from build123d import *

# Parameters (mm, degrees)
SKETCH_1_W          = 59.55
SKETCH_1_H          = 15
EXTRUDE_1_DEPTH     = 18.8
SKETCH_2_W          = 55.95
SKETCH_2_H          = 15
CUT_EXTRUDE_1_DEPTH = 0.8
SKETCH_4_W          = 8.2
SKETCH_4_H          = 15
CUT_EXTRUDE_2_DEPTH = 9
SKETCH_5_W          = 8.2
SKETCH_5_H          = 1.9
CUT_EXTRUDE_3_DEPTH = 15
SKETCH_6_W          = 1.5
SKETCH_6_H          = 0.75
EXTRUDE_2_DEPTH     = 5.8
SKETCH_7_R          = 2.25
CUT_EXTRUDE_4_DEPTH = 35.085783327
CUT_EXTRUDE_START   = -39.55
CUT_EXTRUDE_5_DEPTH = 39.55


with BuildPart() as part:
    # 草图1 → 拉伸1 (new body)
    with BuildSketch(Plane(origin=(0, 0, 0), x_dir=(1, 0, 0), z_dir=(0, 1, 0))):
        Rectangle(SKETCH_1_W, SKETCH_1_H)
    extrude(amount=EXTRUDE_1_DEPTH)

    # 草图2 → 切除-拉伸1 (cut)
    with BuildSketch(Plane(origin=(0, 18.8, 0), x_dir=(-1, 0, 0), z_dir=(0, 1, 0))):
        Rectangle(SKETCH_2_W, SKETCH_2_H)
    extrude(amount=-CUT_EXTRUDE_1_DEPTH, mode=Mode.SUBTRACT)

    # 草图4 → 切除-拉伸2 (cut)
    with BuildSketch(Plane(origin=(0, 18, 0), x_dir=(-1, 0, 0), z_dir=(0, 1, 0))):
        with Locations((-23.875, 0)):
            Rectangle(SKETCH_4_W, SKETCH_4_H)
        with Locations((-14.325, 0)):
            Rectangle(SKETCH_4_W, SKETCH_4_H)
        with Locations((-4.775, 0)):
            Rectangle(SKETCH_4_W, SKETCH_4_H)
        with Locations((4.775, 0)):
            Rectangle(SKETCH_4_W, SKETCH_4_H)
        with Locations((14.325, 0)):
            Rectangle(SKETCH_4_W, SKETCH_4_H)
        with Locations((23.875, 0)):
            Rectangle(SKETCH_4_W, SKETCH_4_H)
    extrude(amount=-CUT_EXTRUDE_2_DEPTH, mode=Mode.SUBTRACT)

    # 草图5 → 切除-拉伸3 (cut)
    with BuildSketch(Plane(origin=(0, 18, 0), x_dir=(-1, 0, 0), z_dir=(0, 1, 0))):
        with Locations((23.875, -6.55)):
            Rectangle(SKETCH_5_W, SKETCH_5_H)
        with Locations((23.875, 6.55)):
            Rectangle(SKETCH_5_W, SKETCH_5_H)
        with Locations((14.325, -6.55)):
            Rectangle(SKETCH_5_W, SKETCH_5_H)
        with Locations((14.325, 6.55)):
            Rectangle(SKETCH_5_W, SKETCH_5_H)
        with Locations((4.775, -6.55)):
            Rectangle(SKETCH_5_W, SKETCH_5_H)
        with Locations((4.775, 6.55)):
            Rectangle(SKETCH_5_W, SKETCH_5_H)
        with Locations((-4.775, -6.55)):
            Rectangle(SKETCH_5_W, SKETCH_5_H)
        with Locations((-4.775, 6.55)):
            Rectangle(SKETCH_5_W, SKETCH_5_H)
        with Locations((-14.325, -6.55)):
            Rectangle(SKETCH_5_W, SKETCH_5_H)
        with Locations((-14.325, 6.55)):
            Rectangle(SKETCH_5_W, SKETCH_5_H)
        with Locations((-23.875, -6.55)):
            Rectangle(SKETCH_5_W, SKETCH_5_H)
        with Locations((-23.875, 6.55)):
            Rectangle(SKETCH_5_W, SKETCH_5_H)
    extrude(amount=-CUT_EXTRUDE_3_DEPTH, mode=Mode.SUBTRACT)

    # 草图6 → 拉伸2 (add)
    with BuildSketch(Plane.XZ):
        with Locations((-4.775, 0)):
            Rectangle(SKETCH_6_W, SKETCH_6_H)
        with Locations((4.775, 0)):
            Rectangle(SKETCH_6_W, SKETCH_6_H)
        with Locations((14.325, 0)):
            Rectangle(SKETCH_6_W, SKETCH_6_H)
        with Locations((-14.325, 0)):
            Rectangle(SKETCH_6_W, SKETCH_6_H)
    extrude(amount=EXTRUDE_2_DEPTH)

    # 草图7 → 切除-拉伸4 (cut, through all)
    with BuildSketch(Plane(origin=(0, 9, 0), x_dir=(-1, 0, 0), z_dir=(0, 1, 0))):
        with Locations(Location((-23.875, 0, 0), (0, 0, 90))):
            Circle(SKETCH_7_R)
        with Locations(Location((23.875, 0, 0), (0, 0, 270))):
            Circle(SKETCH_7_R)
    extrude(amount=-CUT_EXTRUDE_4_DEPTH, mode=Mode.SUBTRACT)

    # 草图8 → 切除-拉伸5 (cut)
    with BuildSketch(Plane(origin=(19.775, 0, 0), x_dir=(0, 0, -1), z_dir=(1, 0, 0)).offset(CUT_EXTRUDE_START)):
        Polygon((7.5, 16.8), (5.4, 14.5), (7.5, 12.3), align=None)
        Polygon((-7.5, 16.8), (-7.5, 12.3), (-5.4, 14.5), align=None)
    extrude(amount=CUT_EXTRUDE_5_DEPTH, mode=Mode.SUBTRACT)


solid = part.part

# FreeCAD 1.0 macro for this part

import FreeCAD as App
import Part
import Sketcher
Q = App.Units.Quantity


def add_polygon(sketch, points):
    """Adds a closed chain of lines whose ends are joined by coincident constraints."""
    first, n = sketch.GeometryCount, len(points)
    for a, b in zip(points, points[1:] + points[:1]):
        sketch.addGeometry(Part.LineSegment(App.Vector(*a, 0), App.Vector(*b, 0)), False)
    for i in range(n):
        sketch.addConstraint(Sketcher.Constraint("Coincident", first + i, 2, first + (i + 1) % n, 1))

doc = App.newDocument("Part")
params = doc.addObject("Spreadsheet::Sheet", "Params")
for row, (alias, value) in enumerate([
    ("sketch1_height", "15 mm"),
    ("sketch1_width", "59.55 mm"),
    ("pad1_length", "18.8 mm"),
    ("sketch2_height", "15 mm"),
    ("sketch2_width", "55.95 mm"),
    ("pocket1_length", "0.8 mm"),
    ("sketch3_height", "15 mm"),
    ("sketch3_width", "8.2 mm"),
    ("pocket2_length", "9 mm"),
    ("sketch4_width", "8.2 mm"),
    ("sketch4_height", "1.9 mm"),
    ("pocket3_length", "15 mm"),
    ("sketch5_width", "1.5 mm"),
    ("sketch5_height", "0.75 mm"),
    ("pad2_length", "5.8 mm"),
    ("sketch6_diameter", "4.5 mm"),
    ("sketch7_width", "4.5 mm"),
    ("pocket5_length", "39.55 mm"),
], start=1):
    params.set(f"A{row}", alias)
    params.set(f"B{row}", "=" + value)
    params.setAlias(f"B{row}", alias)

body = doc.addObject("PartDesign::Body", "Body")

# Sketch on XZ plane
sketch1 = body.newObject("Sketcher::SketchObject", "Sketch")
sketch1.AttachmentSupport = (doc.getObject("XZ_Plane"), [""])
sketch1.MapMode = "FlatFace"
add_polygon(sketch1, [(-30, -8), (-30, 8), (30, 8), (30, -8)])  # lines 0-3
sketch1.addConstraint([
    Sketcher.Constraint("Vertical", 0),
    Sketcher.Constraint("Horizontal", 1),
    Sketcher.Constraint("Vertical", 2),
    Sketcher.Constraint("Horizontal", 3),
    Sketcher.Constraint("Symmetric", 0, 2, 2, 2, -1, 1),
    Sketcher.Constraint("DistanceY", 0, 1, 0, 2, Q("15 mm")),
    Sketcher.Constraint("DistanceX", 1, 1, 1, 2, Q("59.55 mm")),
])
sketch1.setExpression("Constraints[9]", "Params.sketch1_height")
sketch1.setExpression("Constraints[10]", "Params.sketch1_width")
pad1 = body.newObject("PartDesign::Pad", "Pad")
pad1.Profile = sketch1
pad1.setExpression("Length", "Params.pad1_length")
pad1.Reversed = True

# Sketch on XZ plane
sketch2 = body.newObject("Sketcher::SketchObject", "Sketch001")
sketch2.AttachmentSupport = (doc.getObject("XZ_Plane"), [""])
sketch2.MapMode = "FlatFace"
sketch2.AttachmentOffset = App.Placement(App.Vector(0, 0, -18.8), App.Rotation())
add_polygon(sketch2, [(28, 8), (28, -8), (-28, -8), (-28, 8)])  # lines 0-3
sketch2.addConstraint([
    Sketcher.Constraint("Vertical", 0),
    Sketcher.Constraint("Horizontal", 1),
    Sketcher.Constraint("Vertical", 2),
    Sketcher.Constraint("Horizontal", 3),
    Sketcher.Constraint("Symmetric", 0, 2, 2, 2, -1, 1),
    Sketcher.Constraint("DistanceY", 0, 2, 0, 1, Q("15 mm")),
    Sketcher.Constraint("DistanceX", 1, 2, 1, 1, Q("55.95 mm")),
])
sketch2.setExpression("Constraints[9]", "Params.sketch2_height")
sketch2.setExpression("Constraints[10]", "Params.sketch2_width")
pocket1 = body.newObject("PartDesign::Pocket", "Pocket")
pocket1.Profile = sketch2
pocket1.setExpression("Length", "Params.pocket1_length")
pocket1.Reversed = True

# Sketch on XZ plane
sketch3 = body.newObject("Sketcher::SketchObject", "Sketch002")
sketch3.AttachmentSupport = (doc.getObject("XZ_Plane"), [""])
sketch3.MapMode = "FlatFace"
sketch3.AttachmentOffset = App.Placement(App.Vector(0, 0, -18), App.Rotation())
add_polygon(sketch3, [(28, 8), (28, -8), (20, -8), (20, 8)])  # lines 0-3
add_polygon(sketch3, [(18, 8), (18, -8), (10, -8), (10, 8)])  # lines 4-7
add_polygon(sketch3, [(9, 8), (9, -8), (1, -8), (1, 8)])  # lines 8-11
add_polygon(sketch3, [(-1, 8), (-1, -8), (-9, -8), (-9, 8)])  # lines 12-15
add_polygon(sketch3, [(-10, 8), (-10, -8), (-18, -8), (-18, 8)])  # lines 16-19
add_polygon(sketch3, [(-20, 8), (-20, -8), (-28, -8), (-28, 8)])  # lines 20-23
sketch3.addConstraint([
    Sketcher.Constraint("Vertical", 0),
    Sketcher.Constraint("Horizontal", 1),
    Sketcher.Constraint("Vertical", 2),
    Sketcher.Constraint("Horizontal", 3),
    Sketcher.Constraint("Vertical", 4),
    Sketcher.Constraint("Horizontal", 5),
    Sketcher.Constraint("Vertical", 6),
    Sketcher.Constraint("Horizontal", 7),
    Sketcher.Constraint("Vertical", 8),
    Sketcher.Constraint("Horizontal", 9),
    Sketcher.Constraint("Vertical", 10),
    Sketcher.Constraint("Horizontal", 11),
    Sketcher.Constraint("Vertical", 12),
    Sketcher.Constraint("Horizontal", 13),
    Sketcher.Constraint("Vertical", 14),
    Sketcher.Constraint("Horizontal", 15),
    Sketcher.Constraint("Vertical", 16),
    Sketcher.Constraint("Horizontal", 17),
    Sketcher.Constraint("Vertical", 18),
    Sketcher.Constraint("Horizontal", 19),
    Sketcher.Constraint("Vertical", 20),
    Sketcher.Constraint("Horizontal", 21),
    Sketcher.Constraint("Vertical", 22),
    Sketcher.Constraint("Horizontal", 23),
    Sketcher.Constraint("Symmetric", 10, 2, 12, 2, -1, 1),
    Sketcher.Constraint("Symmetric", 8, 2, 14, 2, -1, 1),
    Sketcher.Constraint("Symmetric", 6, 2, 16, 2, -1, 1),
    Sketcher.Constraint("Symmetric", 4, 2, 18, 2, -1, 1),
    Sketcher.Constraint("Symmetric", 2, 2, 20, 2, -1, 1),
    Sketcher.Constraint("Symmetric", 0, 2, 22, 2, -1, 1),
    Sketcher.Constraint("Horizontal", 1, 2, 4, 2),
    Sketcher.Constraint("Horizontal", 3, 2, 6, 2),
    Sketcher.Constraint("Horizontal", 5, 2, 8, 2),
    Sketcher.Constraint("Horizontal", 7, 2, 10, 2),
    Sketcher.Constraint("Horizontal", 9, 2, 12, 2),
    Sketcher.Constraint("Equal", 3, 5),
    Sketcher.Constraint("Equal", 7, 9),
    Sketcher.Constraint("DistanceY", 0, 2, 0, 1, Q("15 mm")),
    Sketcher.Constraint("DistanceX", 1, 2, 1, 1, Q("8.2 mm")),
    Sketcher.Constraint("DistanceX", 8, 2, 1, 2, Q("10.9 mm")),
    Sketcher.Constraint("DistanceX", 12, 2, 5, 2, Q("10.9 mm")),
    Sketcher.Constraint("DistanceX", 4, 2, 1, 2, Q("1.35 mm")),
])
sketch3.setExpression("Constraints[61]", "Params.sketch3_height")
sketch3.setExpression("Constraints[62]", "Params.sketch3_width")
pocket2 = body.newObject("PartDesign::Pocket", "Pocket001")
pocket2.Profile = sketch3
pocket2.setExpression("Length", "Params.pocket2_length")
pocket2.Reversed = True

# Sketch on XZ plane
sketch4 = body.newObject("Sketcher::SketchObject", "Sketch003")
sketch4.AttachmentSupport = (doc.getObject("XZ_Plane"), [""])
sketch4.MapMode = "FlatFace"
sketch4.AttachmentOffset = App.Placement(App.Vector(0, 0, -18), App.Rotation())
add_polygon(sketch4, [(-19.8, -5.6), (-19.8, -7.5), (-28, -7.5), (-28, -5.6)])  # lines 0-3
add_polygon(sketch4, [(-19.8, 7.5), (-19.8, 5.6), (-28, 5.6), (-28, 7.5)])  # lines 4-7
add_polygon(sketch4, [(-10.2, -5.6), (-10.2, -7.5), (-18.4, -7.5), (-18.4, -5.6)])  # lines 8-11
add_polygon(sketch4, [(-10.2, 7.5), (-10.2, 5.6), (-18.4, 5.6), (-18.4, 7.5)])  # lines 12-15
add_polygon(sketch4, [(-0.7, -5.6), (-0.7, -7.5), (-8.9, -7.5), (-8.9, -5.6)])  # lines 16-19
add_polygon(sketch4, [(-0.7, 7.5), (-0.7, 5.6), (-8.9, 5.6), (-8.9, 7.5)])  # lines 20-23
add_polygon(sketch4, [(8.9, -5.6), (8.9, -7.5), (0.7, -7.5), (0.7, -5.6)])  # lines 24-27
add_polygon(sketch4, [(8.9, 7.5), (8.9, 5.6), (0.7, 5.6), (0.7, 7.5)])  # lines 28-31
add_polygon(sketch4, [(18.4, -5.6), (18.4, -7.5), (10.2, -7.5), (10.2, -5.6)])  # lines 32-35
add_polygon(sketch4, [(18.4, 7.5), (18.4, 5.6), (10.2, 5.6), (10.2, 7.5)])  # lines 36-39
add_polygon(sketch4, [(28, -5.6), (28, -7.5), (19.8, -7.5), (19.8, -5.6)])  # lines 40-43
add_polygon(sketch4, [(28, 7.5), (28, 5.6), (19.8, 5.6), (19.8, 7.5)])  # lines 44-47
sketch4.addConstraint([
    Sketcher.Constraint("Vertical", 0),
    Sketcher.Constraint("Horizontal", 1),
    Sketcher.Constraint("Vertical", 2),
    Sketcher.Constraint("Horizontal", 3),
    Sketcher.Constraint("Vertical", 4),
    Sketcher.Constraint("Horizontal", 5),
    Sketcher.Constraint("Vertical", 6),
    Sketcher.Constraint("Horizontal", 7),
    Sketcher.Constraint("Vertical", 8),
    Sketcher.Constraint("Horizontal", 9),
    Sketcher.Constraint("Vertical", 10),
    Sketcher.Constraint("Horizontal", 11),
    Sketcher.Constraint("Vertical", 12),
    Sketcher.Constraint("Horizontal", 13),
    Sketcher.Constraint("Vertical", 14),
    Sketcher.Constraint("Horizontal", 15),
    Sketcher.Constraint("Vertical", 16),
    Sketcher.Constraint("Horizontal", 17),
    Sketcher.Constraint("Vertical", 18),
    Sketcher.Constraint("Horizontal", 19),
    Sketcher.Constraint("Vertical", 20),
    Sketcher.Constraint("Horizontal", 21),
    Sketcher.Constraint("Vertical", 22),
    Sketcher.Constraint("Horizontal", 23),
    Sketcher.Constraint("Vertical", 24),
    Sketcher.Constraint("Horizontal", 25),
    Sketcher.Constraint("Vertical", 26),
    Sketcher.Constraint("Horizontal", 27),
    Sketcher.Constraint("Vertical", 28),
    Sketcher.Constraint("Horizontal", 29),
    Sketcher.Constraint("Vertical", 30),
    Sketcher.Constraint("Horizontal", 31),
    Sketcher.Constraint("Vertical", 32),
    Sketcher.Constraint("Horizontal", 33),
    Sketcher.Constraint("Vertical", 34),
    Sketcher.Constraint("Horizontal", 35),
    Sketcher.Constraint("Vertical", 36),
    Sketcher.Constraint("Horizontal", 37),
    Sketcher.Constraint("Vertical", 38),
    Sketcher.Constraint("Horizontal", 39),
    Sketcher.Constraint("Vertical", 40),
    Sketcher.Constraint("Horizontal", 41),
    Sketcher.Constraint("Vertical", 42),
    Sketcher.Constraint("Horizontal", 43),
    Sketcher.Constraint("Vertical", 44),
    Sketcher.Constraint("Horizontal", 45),
    Sketcher.Constraint("Vertical", 46),
    Sketcher.Constraint("Horizontal", 47),
    Sketcher.Constraint("Symmetric", 22, 2, 24, 2, -1, 1),
    Sketcher.Constraint("Symmetric", 20, 2, 26, 2, -1, 1),
    Sketcher.Constraint("Symmetric", 18, 2, 28, 2, -1, 1),
    Sketcher.Constraint("Symmetric", 16, 2, 30, 2, -1, 1),
    Sketcher.Constraint("Symmetric", 14, 2, 32, 2, -1, 1),
    Sketcher.Constraint("Symmetric", 12, 2, 34, 2, -1, 1),
    Sketcher.Constraint("Symmetric", 10, 2, 36, 2, -1, 1),
    Sketcher.Constraint("Symmetric", 8, 2, 38, 2, -1, 1),
    Sketcher.Constraint("Symmetric", 6, 2, 40, 2, -1, 1),
    Sketcher.Constraint("Symmetric", 4, 2, 42, 2, -1, 1),
    Sketcher.Constraint("Symmetric", 2, 2, 44, 2, -1, 1),
    Sketcher.Constraint("Symmetric", 0, 2, 46, 2, -1, 1),
    Sketcher.Constraint("Symmetric", 17, 2, 24, 2, -2),
    Sketcher.Constraint("Symmetric", 19, 2, 26, 2, -2),
    Sketcher.Constraint("Symmetric", 9, 2, 32, 2, -2),
    Sketcher.Constraint("Symmetric", 11, 2, 34, 2, -2),
    Sketcher.Constraint("Symmetric", 1, 2, 40, 2, -2),
    Sketcher.Constraint("Symmetric", 3, 2, 42, 2, -2),
    Sketcher.Constraint("Horizontal", 1, 2, 8, 2),
    Sketcher.Constraint("Horizontal", 3, 2, 10, 2),
    Sketcher.Constraint("Horizontal", 9, 2, 16, 2),
    Sketcher.Constraint("Horizontal", 11, 2, 18, 2),
    Sketcher.Constraint("Equal", 7, 9),
    Sketcher.Constraint("Equal", 15, 17),
    Sketcher.Constraint("DistanceX", 1, 2, 1, 1, Q("8.2 mm")),
    Sketcher.Constraint("DistanceY", 0, 2, 0, 1, Q("1.9 mm")),
    Sketcher.Constraint("DistanceY", 1, 2, 6, 2, Q("15 mm")),
    Sketcher.Constraint("DistanceX", 0, 2, 8, 2, Q("9.55 mm")),
    Sketcher.Constraint("DistanceX", 8, 2, 16, 2, Q("9.55 mm")),
    Sketcher.Constraint("DistanceX", 16, 2, 24, 2, Q("9.55 mm")),
])
sketch4.setExpression("Constraints[120]", "Params.sketch4_width")
sketch4.setExpression("Constraints[121]", "Params.sketch4_height")
pocket3 = body.newObject("PartDesign::Pocket", "Pocket002")
pocket3.Profile = sketch4
pocket3.setExpression("Length", "Params.pocket3_length")
pocket3.Reversed = True

# Sketch on XZ plane
sketch5 = body.newObject("Sketcher::SketchObject", "Sketch004")
sketch5.AttachmentSupport = (doc.getObject("XZ_Plane"), [""])
sketch5.MapMode = "FlatFace"
add_polygon(sketch5, [(-5.5, 0.4), (-5.5, -0.4), (-4, -0.4), (-4, 0.4)])  # lines 0-3
add_polygon(sketch5, [(4, 0.4), (4, -0.4), (5.5, -0.4), (5.5, 0.4)])  # lines 4-7
add_polygon(sketch5, [(13.6, 0.4), (13.6, -0.4), (15.1, -0.4), (15.1, 0.4)])  # lines 8-11
add_polygon(sketch5, [(-15.1, 0.4), (-15.1, -0.4), (-13.6, -0.4), (-13.6, 0.4)])  # lines 12-15
sketch5.addConstraint([
    Sketcher.Constraint("Vertical", 0),
    Sketcher.Constraint("Horizontal", 1),
    Sketcher.Constraint("Vertical", 2),
    Sketcher.Constraint("Horizontal", 3),
    Sketcher.Constraint("Vertical", 4),
    Sketcher.Constraint("Horizontal", 5),
    Sketcher.Constraint("Vertical", 6),
    Sketcher.Constraint("Horizontal", 7),
    Sketcher.Constraint("Vertical", 8),
    Sketcher.Constraint("Horizontal", 9),
    Sketcher.Constraint("Vertical", 10),
    Sketcher.Constraint("Horizontal", 11),
    Sketcher.Constraint("Vertical", 12),
    Sketcher.Constraint("Horizontal", 13),
    Sketcher.Constraint("Vertical", 14),
    Sketcher.Constraint("Horizontal", 15),
    Sketcher.Constraint("Symmetric", 2, 2, 4, 2, -1, 1),
    Sketcher.Constraint("Symmetric", 0, 2, 6, 2, -1, 1),
    Sketcher.Constraint("Symmetric", 10, 2, 12, 2, -1, 1),
    Sketcher.Constraint("Symmetric", 8, 2, 14, 2, -1, 1),
    Sketcher.Constraint("Horizontal", 1, 2, 4, 2),
    Sketcher.Constraint("Horizontal", 5, 2, 8, 2),
    Sketcher.Constraint("Horizontal", 7, 2, 10, 2),
    Sketcher.Constraint("Equal", 7, 9),
    Sketcher.Constraint("DistanceX", 1, 1, 1, 2, Q("1.5 mm")),
    Sketcher.Constraint("DistanceY", 0, 2, 0, 1, Q("0.75 mm")),
    Sketcher.Constraint("DistanceX", 1, 2, 8, 2, Q("17.6 mm")),
    Sketcher.Constraint("DistanceX", 1, 2, 4, 2, Q("8.05 mm")),
])
sketch5.setExpression("Constraints[40]", "Params.sketch5_width")
sketch5.setExpression("Constraints[41]", "Params.sketch5_height")
pad2 = body.newObject("PartDesign::Pad", "Pad001")
pad2.Profile = sketch5
pad2.setExpression("Length", "Params.pad2_length")

# Sketch on XZ plane
sketch6 = body.newObject("Sketcher::SketchObject", "Sketch005")
sketch6.AttachmentSupport = (doc.getObject("XZ_Plane"), [""])
sketch6.MapMode = "FlatFace"
sketch6.AttachmentOffset = App.Placement(App.Vector(0, 0, -9), App.Rotation())
sketch6.addGeometry([
    Part.Circle(App.Vector(23.9, 0, 0), App.Vector(0, 0, 1), 2.2),
    Part.Circle(App.Vector(-23.9, 0, 0), App.Vector(0, 0, 1), 2.2),
], False)
sketch6.addConstraint([
    Sketcher.Constraint("Equal", 0, 1),
    Sketcher.Constraint("Symmetric", 0, 3, 1, 3, -1, 1),
    Sketcher.Constraint("PointOnObject", 0, 3, -1),
    Sketcher.Constraint("Diameter", 0, Q("4.5 mm")),
    Sketcher.Constraint("DistanceX", 1, 3, 0, 3, Q("47.75 mm")),
])
sketch6.setExpression("Constraints[3]", "Params.sketch6_diameter")
pocket4 = body.newObject("PartDesign::Pocket", "Pocket003")
pocket4.Profile = sketch6
pocket4.Type = "ThroughAll"
pocket4.Reversed = True

# Sketch on YZ plane
sketch7 = body.newObject("Sketcher::SketchObject", "Sketch006")
sketch7.AttachmentSupport = (doc.getObject("YZ_Plane"), [""])
sketch7.MapMode = "FlatFace"
sketch7.AttachmentOffset = App.Placement(App.Vector(0, 0, -19.775), App.Rotation())
add_polygon(sketch7, [(16.8, -7.5), (14.5, -5.4), (12.3, -7.5)])  # lines 0-2
add_polygon(sketch7, [(16.8, 7.5), (12.3, 7.5), (14.5, 5.4)])  # lines 3-5
sketch7.addConstraint([
    Sketcher.Constraint("Horizontal", 2),
    Sketcher.Constraint("Horizontal", 3),
    Sketcher.Constraint("Symmetric", 1, 2, 3, 2, -1),
    Sketcher.Constraint("Symmetric", 0, 2, 4, 2, -1),
    Sketcher.Constraint("Vertical", 2, 2, 5, 2),
    Sketcher.Constraint("DistanceX", 2, 1, 2, 2, Q("4.5 mm")),
    Sketcher.Constraint("DistanceY", 1, 2, 3, 2, Q("15 mm")),
    Sketcher.Constraint("DistanceX", -1, 1, 0, 2, Q("14.5 mm")),
    Sketcher.Constraint("DistanceY", 0, 2, -1, 1, Q("5.4 mm")),
    Sketcher.Constraint("DistanceX", -1, 1, 1, 2, Q("12.3 mm")),
])
sketch7.setExpression("Constraints[11]", "Params.sketch7_width")
pocket5 = body.newObject("PartDesign::Pocket", "Pocket004")
pocket5.Profile = sketch7
pocket5.setExpression("Length", "Params.pocket5_length")
pocket5.Reversed = True

doc.recompute()
